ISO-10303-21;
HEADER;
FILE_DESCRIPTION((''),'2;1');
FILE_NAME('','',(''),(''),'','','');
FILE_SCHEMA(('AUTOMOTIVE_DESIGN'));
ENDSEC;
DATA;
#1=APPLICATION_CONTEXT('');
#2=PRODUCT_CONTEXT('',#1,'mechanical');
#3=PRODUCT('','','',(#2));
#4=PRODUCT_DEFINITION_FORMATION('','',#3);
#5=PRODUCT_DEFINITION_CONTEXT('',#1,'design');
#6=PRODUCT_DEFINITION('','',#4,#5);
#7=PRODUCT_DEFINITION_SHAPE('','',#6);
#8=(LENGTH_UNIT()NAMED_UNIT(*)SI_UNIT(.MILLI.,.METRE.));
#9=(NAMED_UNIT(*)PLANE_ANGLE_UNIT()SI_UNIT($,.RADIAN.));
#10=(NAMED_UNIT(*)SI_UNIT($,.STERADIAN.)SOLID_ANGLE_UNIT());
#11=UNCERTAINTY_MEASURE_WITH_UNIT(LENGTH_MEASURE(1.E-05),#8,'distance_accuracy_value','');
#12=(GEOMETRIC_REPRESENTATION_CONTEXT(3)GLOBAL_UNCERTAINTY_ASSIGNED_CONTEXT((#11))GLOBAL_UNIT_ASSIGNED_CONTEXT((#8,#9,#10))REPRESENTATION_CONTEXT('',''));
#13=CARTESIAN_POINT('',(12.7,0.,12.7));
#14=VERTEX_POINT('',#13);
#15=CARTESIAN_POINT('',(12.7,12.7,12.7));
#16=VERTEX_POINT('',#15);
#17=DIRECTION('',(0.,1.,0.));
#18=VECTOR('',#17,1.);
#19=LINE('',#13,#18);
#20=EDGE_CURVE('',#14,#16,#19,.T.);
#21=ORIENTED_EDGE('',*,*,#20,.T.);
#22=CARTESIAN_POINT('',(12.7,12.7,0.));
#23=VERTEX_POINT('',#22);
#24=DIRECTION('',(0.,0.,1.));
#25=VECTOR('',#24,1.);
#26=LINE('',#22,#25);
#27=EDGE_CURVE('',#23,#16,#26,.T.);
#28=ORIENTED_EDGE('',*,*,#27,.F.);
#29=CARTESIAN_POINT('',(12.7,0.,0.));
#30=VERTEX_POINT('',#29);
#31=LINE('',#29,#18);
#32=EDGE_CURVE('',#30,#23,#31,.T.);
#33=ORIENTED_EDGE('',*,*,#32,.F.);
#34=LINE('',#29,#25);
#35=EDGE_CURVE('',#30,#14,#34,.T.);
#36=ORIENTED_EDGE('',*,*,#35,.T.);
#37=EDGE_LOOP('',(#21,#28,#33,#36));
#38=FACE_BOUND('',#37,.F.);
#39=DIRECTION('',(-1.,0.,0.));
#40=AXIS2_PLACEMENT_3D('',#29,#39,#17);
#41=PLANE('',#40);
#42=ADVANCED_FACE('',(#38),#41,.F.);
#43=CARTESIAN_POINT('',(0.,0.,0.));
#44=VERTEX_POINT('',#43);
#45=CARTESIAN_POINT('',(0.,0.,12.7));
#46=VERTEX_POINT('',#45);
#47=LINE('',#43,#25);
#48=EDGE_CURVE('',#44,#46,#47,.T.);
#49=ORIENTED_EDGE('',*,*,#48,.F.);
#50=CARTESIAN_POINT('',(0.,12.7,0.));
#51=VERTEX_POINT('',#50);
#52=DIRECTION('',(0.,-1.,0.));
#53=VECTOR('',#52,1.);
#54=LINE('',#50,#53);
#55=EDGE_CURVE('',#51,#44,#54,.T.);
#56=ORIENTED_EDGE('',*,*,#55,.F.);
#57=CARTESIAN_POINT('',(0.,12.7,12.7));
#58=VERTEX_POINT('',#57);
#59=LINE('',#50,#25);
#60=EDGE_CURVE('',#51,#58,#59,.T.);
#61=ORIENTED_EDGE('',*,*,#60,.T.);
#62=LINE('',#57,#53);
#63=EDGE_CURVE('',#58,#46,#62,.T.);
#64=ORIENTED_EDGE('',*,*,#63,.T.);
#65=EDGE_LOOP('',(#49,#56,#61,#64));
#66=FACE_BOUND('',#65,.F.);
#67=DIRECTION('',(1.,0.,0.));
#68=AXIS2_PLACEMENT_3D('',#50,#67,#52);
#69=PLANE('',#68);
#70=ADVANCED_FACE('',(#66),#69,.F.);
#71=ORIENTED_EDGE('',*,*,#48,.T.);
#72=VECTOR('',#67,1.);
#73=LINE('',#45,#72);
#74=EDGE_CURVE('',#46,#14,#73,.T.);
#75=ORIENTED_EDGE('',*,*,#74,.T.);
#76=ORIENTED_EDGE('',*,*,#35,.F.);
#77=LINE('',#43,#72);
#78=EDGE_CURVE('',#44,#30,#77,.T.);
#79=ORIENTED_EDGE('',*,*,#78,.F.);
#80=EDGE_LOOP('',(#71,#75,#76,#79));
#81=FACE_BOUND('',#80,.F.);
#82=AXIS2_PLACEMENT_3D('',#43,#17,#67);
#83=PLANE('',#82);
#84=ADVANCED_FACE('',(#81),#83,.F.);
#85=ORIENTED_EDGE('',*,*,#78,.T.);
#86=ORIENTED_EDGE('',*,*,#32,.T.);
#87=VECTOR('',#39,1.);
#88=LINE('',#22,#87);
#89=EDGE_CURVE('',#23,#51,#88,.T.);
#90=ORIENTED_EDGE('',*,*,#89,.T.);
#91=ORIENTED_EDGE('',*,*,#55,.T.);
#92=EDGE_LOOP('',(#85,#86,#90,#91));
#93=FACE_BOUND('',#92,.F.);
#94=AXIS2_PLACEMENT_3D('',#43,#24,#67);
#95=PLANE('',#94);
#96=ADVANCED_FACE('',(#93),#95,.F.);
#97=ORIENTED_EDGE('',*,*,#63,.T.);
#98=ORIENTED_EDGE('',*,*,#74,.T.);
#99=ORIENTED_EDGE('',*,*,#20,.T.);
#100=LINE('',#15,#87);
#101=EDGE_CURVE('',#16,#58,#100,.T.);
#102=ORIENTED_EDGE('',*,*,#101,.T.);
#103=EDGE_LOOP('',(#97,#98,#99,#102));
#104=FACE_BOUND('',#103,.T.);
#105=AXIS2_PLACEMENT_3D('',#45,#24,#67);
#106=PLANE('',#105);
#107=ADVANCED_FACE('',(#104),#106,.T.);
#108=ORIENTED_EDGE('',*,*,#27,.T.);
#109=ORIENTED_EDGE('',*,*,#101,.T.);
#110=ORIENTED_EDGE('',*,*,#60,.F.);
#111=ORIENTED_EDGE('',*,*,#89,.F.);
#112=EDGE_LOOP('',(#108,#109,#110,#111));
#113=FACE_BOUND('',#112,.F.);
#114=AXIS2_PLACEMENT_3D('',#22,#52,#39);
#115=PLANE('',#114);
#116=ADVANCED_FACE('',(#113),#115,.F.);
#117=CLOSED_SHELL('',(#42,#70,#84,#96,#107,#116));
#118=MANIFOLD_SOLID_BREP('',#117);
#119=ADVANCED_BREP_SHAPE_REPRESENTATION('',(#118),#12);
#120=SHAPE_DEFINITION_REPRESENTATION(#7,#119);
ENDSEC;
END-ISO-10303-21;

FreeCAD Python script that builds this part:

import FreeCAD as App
import Part
import Sketcher
from FreeCAD import Vector
Q = App.Units.Quantity

doc = App.newDocument("Part")
body = doc.addObject("PartDesign::Body", "Body")

# Sketch on XY plane
sketch1 = body.newObject("Sketcher::SketchObject", "Sketch")
sketch1.AttachmentSupport = (doc.getObject("XY_Plane"), [""])
sketch1.MapMode = "FlatFace"
sketch1.addGeometry(Part.LineSegment(Vector(0, 13, 0), Vector(0, 0, 0)), False)
sketch1.addGeometry(Part.LineSegment(Vector(0, 0, 0), Vector(13, 0, 0)), False)
sketch1.addGeometry(Part.LineSegment(Vector(13, 0, 0), Vector(13, 13, 0)), False)
sketch1.addGeometry(Part.LineSegment(Vector(13, 13, 0), Vector(0, 13, 0)), False)
sketch1.addConstraint(Sketcher.Constraint("Coincident", 0, 2, 1, 1))
sketch1.addConstraint(Sketcher.Constraint("Coincident", 1, 2, 2, 1))
sketch1.addConstraint(Sketcher.Constraint("Coincident", 2, 2, 3, 1))
sketch1.addConstraint(Sketcher.Constraint("Coincident", 3, 2, 0, 1))
sketch1.addConstraint(Sketcher.Constraint("Vertical", 0))
sketch1.addConstraint(Sketcher.Constraint("Horizontal", 1))
sketch1.addConstraint(Sketcher.Constraint("Vertical", 2))
sketch1.addConstraint(Sketcher.Constraint("Horizontal", 3))
sketch1.addConstraint(Sketcher.Constraint("Coincident", 0, 2, -1, 1))
sketch1.addConstraint(Sketcher.Constraint("Equal", 3, 0))
sketch1.addConstraint(Sketcher.Constraint("DistanceX", 1, 1, 1, 2, Q("0.5 in")))
pad1 = body.newObject("PartDesign::Pad", "Pad")
pad1.Profile = sketch1
pad1.Length = Q("0.5 in")

doc.recompute()
